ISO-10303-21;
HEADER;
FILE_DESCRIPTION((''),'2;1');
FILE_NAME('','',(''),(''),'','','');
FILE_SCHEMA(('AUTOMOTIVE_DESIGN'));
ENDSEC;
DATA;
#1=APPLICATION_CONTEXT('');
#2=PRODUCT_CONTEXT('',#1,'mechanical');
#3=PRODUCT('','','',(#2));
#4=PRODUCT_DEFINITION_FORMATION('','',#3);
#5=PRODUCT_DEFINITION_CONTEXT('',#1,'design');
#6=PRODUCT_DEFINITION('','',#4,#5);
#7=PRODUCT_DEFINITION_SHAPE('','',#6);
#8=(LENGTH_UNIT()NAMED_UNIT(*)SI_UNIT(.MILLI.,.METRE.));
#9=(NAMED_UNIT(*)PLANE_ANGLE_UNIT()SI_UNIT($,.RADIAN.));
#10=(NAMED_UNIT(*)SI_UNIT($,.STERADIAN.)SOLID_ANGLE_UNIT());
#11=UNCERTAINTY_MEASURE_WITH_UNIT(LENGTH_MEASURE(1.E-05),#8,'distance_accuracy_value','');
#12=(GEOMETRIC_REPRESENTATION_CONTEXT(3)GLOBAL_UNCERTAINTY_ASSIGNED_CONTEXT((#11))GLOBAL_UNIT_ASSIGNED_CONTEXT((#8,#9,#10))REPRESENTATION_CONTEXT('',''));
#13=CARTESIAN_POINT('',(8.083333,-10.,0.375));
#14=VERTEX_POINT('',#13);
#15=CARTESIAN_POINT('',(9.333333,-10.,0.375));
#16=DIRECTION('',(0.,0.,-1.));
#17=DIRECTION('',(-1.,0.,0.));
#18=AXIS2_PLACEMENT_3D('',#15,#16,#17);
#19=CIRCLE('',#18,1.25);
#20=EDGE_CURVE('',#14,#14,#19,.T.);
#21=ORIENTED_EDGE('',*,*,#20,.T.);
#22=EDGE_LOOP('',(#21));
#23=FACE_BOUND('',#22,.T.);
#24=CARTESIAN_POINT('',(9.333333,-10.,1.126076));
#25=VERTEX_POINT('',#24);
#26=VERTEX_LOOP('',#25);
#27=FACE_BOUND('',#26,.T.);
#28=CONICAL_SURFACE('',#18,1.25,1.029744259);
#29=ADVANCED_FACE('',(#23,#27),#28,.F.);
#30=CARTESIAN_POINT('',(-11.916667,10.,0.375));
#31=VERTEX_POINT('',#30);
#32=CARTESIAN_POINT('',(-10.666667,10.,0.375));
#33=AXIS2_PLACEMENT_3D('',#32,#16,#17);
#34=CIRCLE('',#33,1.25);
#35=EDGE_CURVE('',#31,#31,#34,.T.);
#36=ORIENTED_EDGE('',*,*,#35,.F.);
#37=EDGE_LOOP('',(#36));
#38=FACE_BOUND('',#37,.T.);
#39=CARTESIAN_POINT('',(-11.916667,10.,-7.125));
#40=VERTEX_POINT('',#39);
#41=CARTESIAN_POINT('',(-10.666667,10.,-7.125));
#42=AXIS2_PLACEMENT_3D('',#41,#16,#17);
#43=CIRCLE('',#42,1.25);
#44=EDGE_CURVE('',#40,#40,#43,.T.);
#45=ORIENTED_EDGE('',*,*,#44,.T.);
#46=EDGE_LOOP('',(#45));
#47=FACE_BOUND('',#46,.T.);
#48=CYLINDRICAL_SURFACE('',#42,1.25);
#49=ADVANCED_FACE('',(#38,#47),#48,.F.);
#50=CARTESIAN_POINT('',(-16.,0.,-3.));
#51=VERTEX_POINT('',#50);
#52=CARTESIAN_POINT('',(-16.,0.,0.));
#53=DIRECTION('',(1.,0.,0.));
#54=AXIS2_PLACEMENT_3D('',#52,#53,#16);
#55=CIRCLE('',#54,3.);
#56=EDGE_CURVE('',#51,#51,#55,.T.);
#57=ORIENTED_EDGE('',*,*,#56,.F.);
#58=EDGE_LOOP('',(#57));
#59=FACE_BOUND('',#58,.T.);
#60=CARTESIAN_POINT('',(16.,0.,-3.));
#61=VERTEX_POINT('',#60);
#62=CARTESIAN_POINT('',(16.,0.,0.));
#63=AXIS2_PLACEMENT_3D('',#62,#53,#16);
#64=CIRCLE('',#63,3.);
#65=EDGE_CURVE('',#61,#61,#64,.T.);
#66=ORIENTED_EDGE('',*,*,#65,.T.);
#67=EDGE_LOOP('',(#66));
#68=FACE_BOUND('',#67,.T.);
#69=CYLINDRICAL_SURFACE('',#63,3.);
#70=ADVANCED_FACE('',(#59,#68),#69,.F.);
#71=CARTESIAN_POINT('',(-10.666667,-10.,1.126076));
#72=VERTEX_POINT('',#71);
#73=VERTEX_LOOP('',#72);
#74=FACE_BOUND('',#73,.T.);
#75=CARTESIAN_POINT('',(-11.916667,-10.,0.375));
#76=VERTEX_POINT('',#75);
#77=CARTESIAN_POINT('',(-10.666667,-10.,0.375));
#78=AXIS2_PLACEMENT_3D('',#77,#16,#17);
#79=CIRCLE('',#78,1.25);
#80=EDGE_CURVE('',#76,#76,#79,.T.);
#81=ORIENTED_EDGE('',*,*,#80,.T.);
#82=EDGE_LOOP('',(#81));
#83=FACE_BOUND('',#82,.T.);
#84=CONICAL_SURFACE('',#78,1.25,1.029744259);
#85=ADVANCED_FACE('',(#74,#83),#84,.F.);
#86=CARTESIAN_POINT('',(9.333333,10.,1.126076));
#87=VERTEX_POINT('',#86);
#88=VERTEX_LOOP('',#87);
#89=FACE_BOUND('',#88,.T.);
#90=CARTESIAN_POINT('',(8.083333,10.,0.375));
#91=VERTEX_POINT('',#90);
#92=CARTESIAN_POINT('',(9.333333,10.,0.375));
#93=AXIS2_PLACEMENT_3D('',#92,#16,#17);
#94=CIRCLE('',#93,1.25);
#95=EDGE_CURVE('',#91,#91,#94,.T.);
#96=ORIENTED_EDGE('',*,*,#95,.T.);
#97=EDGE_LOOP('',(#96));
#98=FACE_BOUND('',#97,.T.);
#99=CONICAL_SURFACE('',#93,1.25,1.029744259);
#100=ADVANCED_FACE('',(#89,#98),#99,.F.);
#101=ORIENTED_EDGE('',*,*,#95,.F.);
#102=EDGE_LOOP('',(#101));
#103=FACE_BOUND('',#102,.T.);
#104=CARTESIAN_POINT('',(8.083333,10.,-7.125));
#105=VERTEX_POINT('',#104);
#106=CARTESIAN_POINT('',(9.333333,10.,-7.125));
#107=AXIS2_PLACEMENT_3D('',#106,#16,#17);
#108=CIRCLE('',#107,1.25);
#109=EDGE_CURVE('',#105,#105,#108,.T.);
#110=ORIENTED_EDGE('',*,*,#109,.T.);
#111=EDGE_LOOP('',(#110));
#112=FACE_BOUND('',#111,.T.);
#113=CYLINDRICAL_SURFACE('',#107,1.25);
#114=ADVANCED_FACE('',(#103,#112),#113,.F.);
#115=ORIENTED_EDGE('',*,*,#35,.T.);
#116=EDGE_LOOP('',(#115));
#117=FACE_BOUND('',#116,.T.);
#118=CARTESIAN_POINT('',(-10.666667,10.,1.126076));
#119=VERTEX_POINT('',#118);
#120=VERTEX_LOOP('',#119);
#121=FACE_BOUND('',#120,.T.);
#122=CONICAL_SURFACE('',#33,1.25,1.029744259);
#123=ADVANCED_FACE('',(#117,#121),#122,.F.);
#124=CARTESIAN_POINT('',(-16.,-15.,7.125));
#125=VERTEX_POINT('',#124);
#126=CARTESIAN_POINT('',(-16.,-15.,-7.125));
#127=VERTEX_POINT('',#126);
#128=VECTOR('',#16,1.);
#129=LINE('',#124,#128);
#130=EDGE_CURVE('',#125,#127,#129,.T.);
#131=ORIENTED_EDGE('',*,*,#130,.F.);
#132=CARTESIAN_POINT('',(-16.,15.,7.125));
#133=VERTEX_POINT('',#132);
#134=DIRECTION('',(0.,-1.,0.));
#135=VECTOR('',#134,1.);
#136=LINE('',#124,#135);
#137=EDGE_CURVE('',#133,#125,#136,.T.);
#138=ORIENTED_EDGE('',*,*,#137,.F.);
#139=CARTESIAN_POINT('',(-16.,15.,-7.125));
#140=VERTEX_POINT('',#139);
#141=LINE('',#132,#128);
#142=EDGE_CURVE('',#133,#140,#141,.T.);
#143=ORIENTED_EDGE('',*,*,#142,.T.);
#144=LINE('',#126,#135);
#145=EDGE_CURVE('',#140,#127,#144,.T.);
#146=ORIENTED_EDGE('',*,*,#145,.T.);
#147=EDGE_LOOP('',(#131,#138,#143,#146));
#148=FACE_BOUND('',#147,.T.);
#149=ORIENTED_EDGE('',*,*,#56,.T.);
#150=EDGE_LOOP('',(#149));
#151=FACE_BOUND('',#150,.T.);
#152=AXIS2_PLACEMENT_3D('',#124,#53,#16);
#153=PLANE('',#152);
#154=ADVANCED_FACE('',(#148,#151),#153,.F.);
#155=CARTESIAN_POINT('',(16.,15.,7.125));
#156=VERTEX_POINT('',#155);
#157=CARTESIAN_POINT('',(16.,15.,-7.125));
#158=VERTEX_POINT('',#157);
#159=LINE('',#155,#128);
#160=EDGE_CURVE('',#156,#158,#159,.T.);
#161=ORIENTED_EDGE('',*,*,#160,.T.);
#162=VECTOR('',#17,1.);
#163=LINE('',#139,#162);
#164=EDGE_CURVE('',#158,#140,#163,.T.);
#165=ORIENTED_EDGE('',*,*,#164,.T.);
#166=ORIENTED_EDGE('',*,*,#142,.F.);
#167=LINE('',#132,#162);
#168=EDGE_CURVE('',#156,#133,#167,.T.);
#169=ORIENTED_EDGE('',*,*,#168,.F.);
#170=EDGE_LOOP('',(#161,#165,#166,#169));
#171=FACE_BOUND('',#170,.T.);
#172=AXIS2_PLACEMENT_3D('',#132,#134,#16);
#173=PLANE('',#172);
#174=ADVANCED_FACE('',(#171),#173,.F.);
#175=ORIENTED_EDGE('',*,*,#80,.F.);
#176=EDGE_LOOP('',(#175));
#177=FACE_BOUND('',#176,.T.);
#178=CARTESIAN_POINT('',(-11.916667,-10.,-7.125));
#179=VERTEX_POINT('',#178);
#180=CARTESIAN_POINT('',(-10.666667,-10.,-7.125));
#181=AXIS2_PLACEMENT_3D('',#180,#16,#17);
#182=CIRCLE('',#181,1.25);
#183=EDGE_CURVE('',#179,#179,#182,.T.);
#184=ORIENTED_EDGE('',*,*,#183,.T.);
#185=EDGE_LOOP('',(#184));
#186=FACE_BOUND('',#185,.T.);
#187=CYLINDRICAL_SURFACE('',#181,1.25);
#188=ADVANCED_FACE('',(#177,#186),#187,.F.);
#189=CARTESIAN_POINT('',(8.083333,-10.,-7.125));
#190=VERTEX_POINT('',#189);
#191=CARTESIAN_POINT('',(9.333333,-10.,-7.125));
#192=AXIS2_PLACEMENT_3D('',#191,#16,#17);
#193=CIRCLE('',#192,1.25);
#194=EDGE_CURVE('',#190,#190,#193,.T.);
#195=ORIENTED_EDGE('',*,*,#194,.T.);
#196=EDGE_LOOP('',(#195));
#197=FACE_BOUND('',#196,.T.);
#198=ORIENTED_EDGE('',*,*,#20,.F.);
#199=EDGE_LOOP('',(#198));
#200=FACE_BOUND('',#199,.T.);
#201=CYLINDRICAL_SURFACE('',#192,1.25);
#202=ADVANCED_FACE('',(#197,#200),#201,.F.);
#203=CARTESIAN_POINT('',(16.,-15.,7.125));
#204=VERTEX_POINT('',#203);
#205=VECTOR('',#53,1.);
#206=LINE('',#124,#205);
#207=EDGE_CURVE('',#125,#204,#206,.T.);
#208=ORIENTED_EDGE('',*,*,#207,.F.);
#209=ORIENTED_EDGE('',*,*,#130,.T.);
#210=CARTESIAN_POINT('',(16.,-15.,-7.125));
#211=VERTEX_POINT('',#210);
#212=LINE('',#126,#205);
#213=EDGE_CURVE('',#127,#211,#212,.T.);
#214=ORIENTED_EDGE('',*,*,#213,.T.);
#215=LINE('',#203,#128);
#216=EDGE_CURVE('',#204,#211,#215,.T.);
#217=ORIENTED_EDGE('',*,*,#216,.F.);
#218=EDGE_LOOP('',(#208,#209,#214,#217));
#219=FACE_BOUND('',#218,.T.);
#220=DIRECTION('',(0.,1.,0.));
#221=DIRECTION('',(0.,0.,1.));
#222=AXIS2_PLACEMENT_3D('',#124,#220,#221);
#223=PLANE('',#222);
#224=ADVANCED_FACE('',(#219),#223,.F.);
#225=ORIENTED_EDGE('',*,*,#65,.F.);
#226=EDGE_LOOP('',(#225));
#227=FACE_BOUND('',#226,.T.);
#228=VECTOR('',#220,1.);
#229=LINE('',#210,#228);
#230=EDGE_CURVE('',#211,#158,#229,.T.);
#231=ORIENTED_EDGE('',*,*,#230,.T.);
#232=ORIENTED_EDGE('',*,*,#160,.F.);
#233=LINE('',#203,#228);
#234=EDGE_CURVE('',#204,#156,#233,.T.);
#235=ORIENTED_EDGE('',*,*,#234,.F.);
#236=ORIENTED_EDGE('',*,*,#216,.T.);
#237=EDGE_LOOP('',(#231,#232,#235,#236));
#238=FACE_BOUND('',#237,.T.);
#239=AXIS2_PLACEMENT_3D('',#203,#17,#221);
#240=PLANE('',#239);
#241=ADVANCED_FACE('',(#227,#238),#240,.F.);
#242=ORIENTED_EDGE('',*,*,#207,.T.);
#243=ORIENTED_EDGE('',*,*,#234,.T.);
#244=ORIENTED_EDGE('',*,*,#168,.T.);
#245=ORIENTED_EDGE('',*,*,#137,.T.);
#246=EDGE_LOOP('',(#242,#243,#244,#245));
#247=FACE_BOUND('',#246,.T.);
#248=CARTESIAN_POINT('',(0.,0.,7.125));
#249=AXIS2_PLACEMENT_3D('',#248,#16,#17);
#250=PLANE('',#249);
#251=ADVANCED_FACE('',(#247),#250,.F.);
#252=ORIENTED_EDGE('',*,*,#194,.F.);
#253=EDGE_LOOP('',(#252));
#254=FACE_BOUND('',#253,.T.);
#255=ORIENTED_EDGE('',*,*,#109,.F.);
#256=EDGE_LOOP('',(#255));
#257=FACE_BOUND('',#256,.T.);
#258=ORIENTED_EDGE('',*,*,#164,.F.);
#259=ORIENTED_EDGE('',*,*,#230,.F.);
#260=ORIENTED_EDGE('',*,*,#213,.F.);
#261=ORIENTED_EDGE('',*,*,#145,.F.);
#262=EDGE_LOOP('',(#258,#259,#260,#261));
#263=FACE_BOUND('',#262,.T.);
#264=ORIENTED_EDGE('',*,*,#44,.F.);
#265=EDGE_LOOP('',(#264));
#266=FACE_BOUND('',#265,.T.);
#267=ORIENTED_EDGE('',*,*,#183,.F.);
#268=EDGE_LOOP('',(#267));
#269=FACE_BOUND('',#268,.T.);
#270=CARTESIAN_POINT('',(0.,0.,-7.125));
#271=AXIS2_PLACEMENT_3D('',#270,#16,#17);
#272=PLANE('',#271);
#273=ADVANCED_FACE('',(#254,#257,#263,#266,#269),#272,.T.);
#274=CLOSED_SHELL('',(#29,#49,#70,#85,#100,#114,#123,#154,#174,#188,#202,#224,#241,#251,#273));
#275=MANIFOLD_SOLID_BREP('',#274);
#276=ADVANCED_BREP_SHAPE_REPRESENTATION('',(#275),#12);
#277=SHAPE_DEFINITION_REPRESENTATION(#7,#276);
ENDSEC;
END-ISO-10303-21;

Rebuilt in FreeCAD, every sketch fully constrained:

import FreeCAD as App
import Part
import Sketcher

doc = App.newDocument("Part")
body = doc.addObject("PartDesign::Body", "Body")

# Sketch on XY plane
sketch1 = body.newObject("Sketcher::SketchObject", "Sketch")
sketch1.AttachmentSupport = (doc.getObject("XY_Plane"), [""])
sketch1.MapMode = "FlatFace"
sketch1.addGeometry([
    Part.LineSegment(App.Vector(-16, 15, 0), App.Vector(-16, -15, 0)),
    Part.LineSegment(App.Vector(-16, -15, 0), App.Vector(16, -15, 0)),
    Part.LineSegment(App.Vector(16, -15, 0), App.Vector(16, 15, 0)),
    Part.LineSegment(App.Vector(16, 15, 0), App.Vector(-16, 15, 0)),
], False)
sketch1.addConstraint([
    Sketcher.Constraint("Coincident", 0, 2, 1, 1),
    Sketcher.Constraint("Coincident", 1, 2, 2, 1),
    Sketcher.Constraint("Coincident", 2, 2, 3, 1),
    Sketcher.Constraint("Coincident", 3, 2, 0, 1),
    Sketcher.Constraint("Vertical", 0),
    Sketcher.Constraint("Horizontal", 1),
    Sketcher.Constraint("Vertical", 2),
    Sketcher.Constraint("Horizontal", 3),
    Sketcher.Constraint("Symmetric", 0, 2, 2, 2, -1, 1),
    Sketcher.Constraint("DistanceX", 1, 1, 1, 2, 32.0),
    Sketcher.Constraint("DistanceY", 0, 2, 0, 1, 30.0),
])
pad1 = body.newObject("PartDesign::Pad", "Pad")
pad1.Profile = sketch1
pad1.Length = 14.25
pad1.Midplane = True

# Sketch on XY plane
sketch2 = body.newObject("Sketcher::SketchObject", "Sketch001")
sketch2.AttachmentSupport = (doc.getObject("XY_Plane"), [""])
sketch2.MapMode = "FlatFace"
sketch2.AttachmentOffset = App.Placement(App.Vector(0, 0, -7.125), App.Rotation())
sketch2.addGeometry([
    Part.Circle(App.Vector(9.333333, 10, 0), App.Vector(0, 0, 1), 1.25),
    Part.Circle(App.Vector(-10.666667, 10, 0), App.Vector(0, 0, 1), 1.25),
    Part.Circle(App.Vector(-10.666667, -10, 0), App.Vector(0, 0, 1), 1.25),
    Part.Circle(App.Vector(9.333333, -10, 0), App.Vector(0, 0, 1), 1.25),
], False)
sketch2.addConstraint([
    Sketcher.Constraint("Equal", 0, 1),
    Sketcher.Constraint("Equal", 1, 2),
    Sketcher.Constraint("Equal", 2, 3),
    Sketcher.Constraint("Symmetric", 1, 3, 2, 3, -1),
    Sketcher.Constraint("Symmetric", 0, 3, 3, 3, -1),
    Sketcher.Constraint("Horizontal", 0, 3, 1, 3),
    Sketcher.Constraint("Diameter", 0, 2.5),
    Sketcher.Constraint("DistanceY", -1, 1, 0, 3, 10.0),
    Sketcher.Constraint("DistanceX", 1, 3, 0, 3, 20.0),
    Sketcher.Constraint("DistanceX", -1, 1, 0, 3, 9.333333),
])
doc.recompute()
hole = body.newObject("PartDesign::Hole", "Hole")
hole.Profile = sketch2
hole.ThreadType = "None"
hole.Diameter = 2.5
hole.DepthType = "Dimension"
hole.Depth = 7.5
hole.DrillPoint = "Angled"
hole.DrillPointAngle = 118
hole.Reversed = True

# Sketch on YZ plane
sketch3 = body.newObject("Sketcher::SketchObject", "Sketch002")
sketch3.AttachmentSupport = (doc.getObject("YZ_Plane"), [""])
sketch3.MapMode = "FlatFace"
sketch3.AttachmentOffset = App.Placement(App.Vector(0, 0, 16), App.Rotation())
sketch3.addGeometry(Part.Circle(App.Vector(0, 0, 0), App.Vector(0, 0, 1), 3), False)
sketch3.addConstraint([
    Sketcher.Constraint("Coincident", 0, 3, -1, 1),
    Sketcher.Constraint("Diameter", 0, 6.0),
])
doc.recompute()
hole2 = body.newObject("PartDesign::Hole", "Hole001")
hole2.Profile = sketch3
hole2.ThreadType = "None"
hole2.Diameter = 6
hole2.DepthType = "ThroughAll"

doc.recompute()
